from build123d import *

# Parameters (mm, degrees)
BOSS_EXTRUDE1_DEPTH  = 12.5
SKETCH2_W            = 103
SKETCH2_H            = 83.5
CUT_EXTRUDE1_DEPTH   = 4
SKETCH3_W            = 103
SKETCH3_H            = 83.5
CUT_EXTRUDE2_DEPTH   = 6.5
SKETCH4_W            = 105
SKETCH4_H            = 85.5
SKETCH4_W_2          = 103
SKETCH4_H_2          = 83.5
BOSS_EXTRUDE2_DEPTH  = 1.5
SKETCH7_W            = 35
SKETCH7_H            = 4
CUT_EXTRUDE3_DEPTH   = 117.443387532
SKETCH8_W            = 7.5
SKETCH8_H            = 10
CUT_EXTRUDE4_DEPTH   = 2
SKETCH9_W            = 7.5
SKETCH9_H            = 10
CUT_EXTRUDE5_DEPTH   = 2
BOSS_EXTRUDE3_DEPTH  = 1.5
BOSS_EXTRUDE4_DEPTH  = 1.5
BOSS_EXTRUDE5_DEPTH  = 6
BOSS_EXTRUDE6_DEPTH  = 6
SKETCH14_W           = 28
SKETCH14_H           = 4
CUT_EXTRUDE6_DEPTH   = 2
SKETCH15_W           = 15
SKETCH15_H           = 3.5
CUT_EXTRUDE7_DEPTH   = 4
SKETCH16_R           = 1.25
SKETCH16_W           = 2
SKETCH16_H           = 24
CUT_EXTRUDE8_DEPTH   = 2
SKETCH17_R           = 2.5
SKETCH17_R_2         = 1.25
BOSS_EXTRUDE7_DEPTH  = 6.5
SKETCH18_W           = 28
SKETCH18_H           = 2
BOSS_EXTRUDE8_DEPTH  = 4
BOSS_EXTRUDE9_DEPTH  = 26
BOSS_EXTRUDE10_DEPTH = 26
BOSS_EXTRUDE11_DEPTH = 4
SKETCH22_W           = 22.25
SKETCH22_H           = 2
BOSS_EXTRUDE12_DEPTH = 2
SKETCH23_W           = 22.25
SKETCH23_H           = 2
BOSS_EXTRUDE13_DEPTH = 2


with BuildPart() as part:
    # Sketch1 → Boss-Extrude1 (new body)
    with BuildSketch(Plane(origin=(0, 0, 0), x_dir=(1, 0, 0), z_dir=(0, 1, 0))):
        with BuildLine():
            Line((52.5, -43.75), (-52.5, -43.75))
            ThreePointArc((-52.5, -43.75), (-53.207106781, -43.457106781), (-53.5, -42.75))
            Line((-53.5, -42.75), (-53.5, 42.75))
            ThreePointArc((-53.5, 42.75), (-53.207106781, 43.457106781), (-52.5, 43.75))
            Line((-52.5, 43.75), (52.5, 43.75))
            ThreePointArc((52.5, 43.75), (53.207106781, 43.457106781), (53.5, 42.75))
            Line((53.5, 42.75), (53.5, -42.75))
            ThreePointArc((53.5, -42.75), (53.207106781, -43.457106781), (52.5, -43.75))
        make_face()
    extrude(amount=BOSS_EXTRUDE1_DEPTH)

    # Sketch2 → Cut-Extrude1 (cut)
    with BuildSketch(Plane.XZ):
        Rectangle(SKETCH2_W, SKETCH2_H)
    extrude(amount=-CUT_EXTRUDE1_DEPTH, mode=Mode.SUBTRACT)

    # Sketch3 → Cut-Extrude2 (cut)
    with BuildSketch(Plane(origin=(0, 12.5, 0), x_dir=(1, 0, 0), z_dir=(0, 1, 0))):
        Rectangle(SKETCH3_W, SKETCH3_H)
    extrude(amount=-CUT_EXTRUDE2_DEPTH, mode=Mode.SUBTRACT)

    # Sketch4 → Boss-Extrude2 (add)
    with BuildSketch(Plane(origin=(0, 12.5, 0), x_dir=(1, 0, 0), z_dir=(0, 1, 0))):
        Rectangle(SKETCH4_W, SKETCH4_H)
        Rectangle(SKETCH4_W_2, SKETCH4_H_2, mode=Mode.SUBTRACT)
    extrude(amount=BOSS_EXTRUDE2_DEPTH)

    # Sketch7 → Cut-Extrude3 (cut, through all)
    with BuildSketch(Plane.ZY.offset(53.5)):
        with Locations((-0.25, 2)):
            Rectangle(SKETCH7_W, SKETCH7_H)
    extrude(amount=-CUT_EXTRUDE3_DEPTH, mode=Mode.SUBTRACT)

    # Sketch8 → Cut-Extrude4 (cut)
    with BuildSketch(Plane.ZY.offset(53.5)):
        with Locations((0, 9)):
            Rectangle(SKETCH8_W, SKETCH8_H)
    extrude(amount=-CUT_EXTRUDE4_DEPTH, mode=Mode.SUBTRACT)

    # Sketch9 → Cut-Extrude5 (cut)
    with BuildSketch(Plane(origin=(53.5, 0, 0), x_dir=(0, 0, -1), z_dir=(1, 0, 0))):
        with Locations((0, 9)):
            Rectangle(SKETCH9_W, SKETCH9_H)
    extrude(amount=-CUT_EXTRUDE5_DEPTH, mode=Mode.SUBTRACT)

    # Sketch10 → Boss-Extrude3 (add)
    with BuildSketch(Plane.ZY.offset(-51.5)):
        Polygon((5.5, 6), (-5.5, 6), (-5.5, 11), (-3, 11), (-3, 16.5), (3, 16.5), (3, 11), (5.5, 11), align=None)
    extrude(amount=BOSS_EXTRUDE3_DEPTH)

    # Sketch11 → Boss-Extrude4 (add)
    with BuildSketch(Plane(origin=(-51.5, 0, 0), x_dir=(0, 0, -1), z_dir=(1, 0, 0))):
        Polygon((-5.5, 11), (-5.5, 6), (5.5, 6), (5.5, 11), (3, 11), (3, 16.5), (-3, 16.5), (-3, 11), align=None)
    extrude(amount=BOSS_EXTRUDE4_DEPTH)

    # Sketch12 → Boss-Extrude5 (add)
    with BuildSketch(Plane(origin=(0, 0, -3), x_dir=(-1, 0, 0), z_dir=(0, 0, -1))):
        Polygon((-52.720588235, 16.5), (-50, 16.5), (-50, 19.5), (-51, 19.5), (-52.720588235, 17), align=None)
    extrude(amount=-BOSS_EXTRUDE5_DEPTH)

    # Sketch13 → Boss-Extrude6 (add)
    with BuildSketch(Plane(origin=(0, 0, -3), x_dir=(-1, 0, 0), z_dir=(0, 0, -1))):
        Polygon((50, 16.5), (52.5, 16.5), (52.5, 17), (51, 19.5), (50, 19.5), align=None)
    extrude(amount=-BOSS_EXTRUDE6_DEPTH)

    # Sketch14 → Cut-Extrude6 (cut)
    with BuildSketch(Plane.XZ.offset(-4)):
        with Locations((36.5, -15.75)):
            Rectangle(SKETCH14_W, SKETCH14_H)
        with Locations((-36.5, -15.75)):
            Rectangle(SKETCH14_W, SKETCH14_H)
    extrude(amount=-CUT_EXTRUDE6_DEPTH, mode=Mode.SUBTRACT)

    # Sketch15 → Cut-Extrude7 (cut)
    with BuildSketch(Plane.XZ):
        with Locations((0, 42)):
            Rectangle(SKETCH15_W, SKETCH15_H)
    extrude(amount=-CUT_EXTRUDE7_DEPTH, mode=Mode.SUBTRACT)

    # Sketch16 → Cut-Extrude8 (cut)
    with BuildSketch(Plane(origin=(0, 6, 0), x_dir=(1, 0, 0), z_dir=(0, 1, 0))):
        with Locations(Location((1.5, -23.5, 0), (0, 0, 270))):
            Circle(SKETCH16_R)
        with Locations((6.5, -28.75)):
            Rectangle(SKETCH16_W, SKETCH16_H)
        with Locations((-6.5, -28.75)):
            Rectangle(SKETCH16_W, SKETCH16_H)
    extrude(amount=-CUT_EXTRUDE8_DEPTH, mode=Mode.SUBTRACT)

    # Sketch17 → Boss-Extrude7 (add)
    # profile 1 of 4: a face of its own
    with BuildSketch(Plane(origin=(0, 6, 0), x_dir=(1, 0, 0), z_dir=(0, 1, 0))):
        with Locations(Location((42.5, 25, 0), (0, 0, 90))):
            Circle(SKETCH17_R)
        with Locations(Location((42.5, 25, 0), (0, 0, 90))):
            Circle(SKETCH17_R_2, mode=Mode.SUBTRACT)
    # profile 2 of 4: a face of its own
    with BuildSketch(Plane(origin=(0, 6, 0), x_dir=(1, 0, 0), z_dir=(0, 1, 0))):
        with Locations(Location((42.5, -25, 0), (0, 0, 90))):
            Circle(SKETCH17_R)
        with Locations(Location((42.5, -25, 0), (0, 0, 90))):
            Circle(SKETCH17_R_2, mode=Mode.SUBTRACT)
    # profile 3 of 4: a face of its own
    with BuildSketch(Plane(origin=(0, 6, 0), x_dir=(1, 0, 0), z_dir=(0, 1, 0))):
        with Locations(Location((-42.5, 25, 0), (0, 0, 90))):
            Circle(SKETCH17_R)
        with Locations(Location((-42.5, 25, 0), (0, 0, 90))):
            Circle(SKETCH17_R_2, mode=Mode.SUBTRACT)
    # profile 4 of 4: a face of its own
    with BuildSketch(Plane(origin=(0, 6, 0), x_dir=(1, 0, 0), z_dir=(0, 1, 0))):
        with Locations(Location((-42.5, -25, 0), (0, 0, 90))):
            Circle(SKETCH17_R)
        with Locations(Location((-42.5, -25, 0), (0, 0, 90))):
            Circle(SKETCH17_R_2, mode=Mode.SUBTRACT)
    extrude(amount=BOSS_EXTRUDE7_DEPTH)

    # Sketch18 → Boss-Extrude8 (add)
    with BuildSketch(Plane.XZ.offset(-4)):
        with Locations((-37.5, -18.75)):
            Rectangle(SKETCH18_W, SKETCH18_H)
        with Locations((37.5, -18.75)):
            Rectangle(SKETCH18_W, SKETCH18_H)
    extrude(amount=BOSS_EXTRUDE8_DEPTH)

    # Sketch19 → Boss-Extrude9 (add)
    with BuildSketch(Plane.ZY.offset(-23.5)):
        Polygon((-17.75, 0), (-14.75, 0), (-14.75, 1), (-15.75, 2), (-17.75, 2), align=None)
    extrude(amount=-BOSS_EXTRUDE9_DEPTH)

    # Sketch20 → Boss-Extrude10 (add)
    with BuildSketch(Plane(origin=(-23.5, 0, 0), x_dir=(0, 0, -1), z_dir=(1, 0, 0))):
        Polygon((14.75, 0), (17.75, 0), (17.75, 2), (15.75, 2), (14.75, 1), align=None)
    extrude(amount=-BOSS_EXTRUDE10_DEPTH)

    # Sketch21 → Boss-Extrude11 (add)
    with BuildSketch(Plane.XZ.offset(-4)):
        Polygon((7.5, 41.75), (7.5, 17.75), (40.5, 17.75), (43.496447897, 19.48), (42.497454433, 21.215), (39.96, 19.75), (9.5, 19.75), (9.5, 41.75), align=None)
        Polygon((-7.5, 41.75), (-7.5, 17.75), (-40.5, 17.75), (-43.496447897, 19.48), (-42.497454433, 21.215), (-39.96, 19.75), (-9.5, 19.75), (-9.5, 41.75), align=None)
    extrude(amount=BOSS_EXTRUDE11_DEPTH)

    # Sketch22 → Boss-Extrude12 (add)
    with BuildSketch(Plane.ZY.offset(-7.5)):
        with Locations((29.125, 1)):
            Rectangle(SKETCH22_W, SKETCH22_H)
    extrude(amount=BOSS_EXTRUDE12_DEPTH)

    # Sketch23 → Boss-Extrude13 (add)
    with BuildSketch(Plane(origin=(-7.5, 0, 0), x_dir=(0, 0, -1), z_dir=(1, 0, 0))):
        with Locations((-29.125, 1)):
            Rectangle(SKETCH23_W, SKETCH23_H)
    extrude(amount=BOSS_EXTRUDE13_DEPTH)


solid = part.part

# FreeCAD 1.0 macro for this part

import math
import FreeCAD as App
import Part
import Sketcher

V = App.Vector
Q = App.Units.Quantity


def add_polygon(sketch, points):
    """Adds a closed chain of lines whose ends are joined by coincident constraints."""
    first, n = sketch.GeometryCount, len(points)
    for a, b in zip(points, points[1:] + points[:1]):
        sketch.addGeometry(Part.LineSegment(App.Vector(*a, 0), App.Vector(*b, 0)), False)
    for i in range(n):
        sketch.addConstraint(Sketcher.Constraint("Coincident", first + i, 2, first + (i + 1) % n, 1))

doc = App.newDocument("Part")
params = doc.addObject("Spreadsheet::Sheet", "Params")
for row, (alias, value) in enumerate([
    ("sketch1_radius", "1 mm"),
    ("sketch1_width", "105 mm"),
    ("sketch1_height", "85.5 mm"),
    ("pad1_length", "12.5 mm"),
    ("sketch2_width", "103 mm"),
    ("sketch2_height", "83.5 mm"),
    ("pocket1_length", "4 mm"),
    ("sketch3_width", "103 mm"),
    ("sketch3_height", "83.5 mm"),
    ("pocket2_length", "6.5 mm"),
    ("sketch4_width", "105 mm"),
    ("sketch4_width2", "103 mm"),
    ("sketch4_height", "85.5 mm"),
    ("sketch4_height2", "83.5 mm"),
    ("pad2_length", "1.5 mm"),
    ("sketch5_width", "4 mm"),
    ("sketch5_height", "35 mm"),
    ("sketch6_width", "10 mm"),
    ("sketch6_height", "7.5 mm"),
    ("pocket4_length", "2 mm"),
    ("sketch7_width", "10 mm"),
    ("sketch7_height", "7.5 mm"),
    ("pocket5_length", "2 mm"),
    ("sketch8_width", "5 mm"),
    ("sketch8_height", "11 mm"),
    ("sketch8_height2", "6 mm"),
    ("sketch8_width2", "5.5 mm"),
    ("pad3_length", "1.5 mm"),
    ("sketch9_width", "5 mm"),
    ("sketch9_height", "11 mm"),
    ("sketch9_height2", "6 mm"),
    ("sketch9_width2", "5.5 mm"),
    ("pad4_length", "1.5 mm"),
    ("sketch10_width", "1 mm"),
    ("sketch10_height", "3 mm"),
    ("sketch10_height2", "0.5 mm"),
    ("pad5_length", "6 mm"),
    ("sketch11_width", "1 mm"),
    ("sketch11_height", "3 mm"),
    ("sketch11_width2", "2.5 mm"),
    ("sketch11_height2", "0.5 mm"),
    ("pad6_length", "6 mm"),
    ("sketch12_width", "28 mm"),
    ("sketch12_height", "4 mm"),
    ("pocket6_length", "2 mm"),
    ("sketch13_width", "15 mm"),
    ("sketch13_height", "3.5 mm"),
    ("pocket7_length", "4 mm"),
    ("sketch14_diameter", "2.5 mm"),
    ("sketch14_width", "2 mm"),
    ("sketch14_height", "24 mm"),
    ("pocket8_length", "2 mm"),
    ("sketch15_diameter", "5 mm"),
    ("sketch15_diameter2", "2.5 mm"),
    ("pad7_length", "6.5 mm"),
    ("sketch16_width", "28 mm"),
    ("sketch16_height", "2 mm"),
    ("pad8_length", "4 mm"),
    ("sketch17_width", "1 mm"),
    ("sketch17_width2", "2 mm"),
    ("sketch17_height", "3 mm"),
    ("pad9_length", "26 mm"),
    ("sketch18_width", "2 mm"),
    ("sketch18_width2", "1 mm"),
    ("sketch18_height", "3 mm"),
    ("pad10_length", "26 mm"),
    ("sketch19_width", "33 mm"),
    ("sketch19_width2", "2 mm"),
    ("sketch19_height", "24 mm"),
    ("sketch19_height2", "22 mm"),
    ("sketch19_width3", "30.46 mm"),
    ("pad11_length", "4 mm"),
    ("sketch20_width", "2 mm"),
    ("sketch20_height", "22.25 mm"),
    ("pad12_length", "2 mm"),
    ("sketch21_width", "2 mm"),
    ("sketch21_height", "22.25 mm"),
    ("pad13_length", "2 mm"),
], start=1):
    params.set(f"A{row}", alias)
    params.set(f"B{row}", "=" + value)
    params.setAlias(f"B{row}", alias)

body = doc.addObject("PartDesign::Body", "Body")

# Sketch on XZ plane
sketch1 = body.newObject("Sketcher::SketchObject", "Sketch")
sketch1.AttachmentSupport = (doc.getObject("XZ_Plane"), [""])
sketch1.MapMode = "FlatFace"
sketch1.addGeometry([
    Part.LineSegment(V(-52.5, 43.8, 0), V(52.5, 43.8, 0)),  # 0
    Part.ArcOfCircle(Part.Circle(V(52.5, 42.7, 0), V(0, 0, 1), 1), math.radians(0), math.radians(90)),  # 1
    Part.LineSegment(V(53.5, 42.8, 0), V(53.5, -42.8, 0)),  # 2
    Part.ArcOfCircle(Part.Circle(V(52.5, -42.7, 0), V(0, 0, 1), 1), math.radians(-90), math.radians(0)),  # 3
    Part.LineSegment(V(52.5, -43.8, 0), V(-52.5, -43.8, 0)),  # 4
    Part.ArcOfCircle(Part.Circle(V(-52.5, -42.7, 0), V(0, 0, 1), 1), math.radians(-180), math.radians(-90)),  # 5
    Part.LineSegment(V(-53.5, -42.8, 0), V(-53.5, 42.8, 0)),  # 6
    Part.ArcOfCircle(Part.Circle(V(-52.5, 42.7, 0), V(0, 0, 1), 1), math.radians(90), math.radians(180)),  # 7
], False)
sketch1.addConstraint([
    Sketcher.Constraint("Tangent", 0, 2, 1, 2),
    Sketcher.Constraint("Tangent", 1, 1, 2, 1),
    Sketcher.Constraint("Tangent", 2, 2, 3, 2),
    Sketcher.Constraint("Tangent", 3, 1, 4, 1),
    Sketcher.Constraint("Tangent", 4, 2, 5, 2),
    Sketcher.Constraint("Tangent", 5, 1, 6, 1),
    Sketcher.Constraint("Tangent", 6, 2, 7, 2),
    Sketcher.Constraint("Tangent", 7, 1, 0, 1),
    Sketcher.Constraint("Horizontal", 0),
    Sketcher.Constraint("Vertical", 2),
    Sketcher.Constraint("Horizontal", 4),
    Sketcher.Constraint("Vertical", 6),
    Sketcher.Constraint("Equal", 1, 3),
    Sketcher.Constraint("Equal", 3, 5),
    Sketcher.Constraint("Equal", 5, 7),
    Sketcher.Constraint("Symmetric", 1, 3, 5, 3, -1, 1),
    Sketcher.Constraint("Radius", 1, Q("1 mm")),
    Sketcher.Constraint("DistanceX", 0, 1, 0, 2, Q("105 mm")),
    Sketcher.Constraint("DistanceY", 2, 2, 2, 1, Q("85.5 mm")),
])
sketch1.setExpression("Constraints[16]", "Params.sketch1_radius")
sketch1.setExpression("Constraints[17]", "Params.sketch1_width")
sketch1.setExpression("Constraints[18]", "Params.sketch1_height")
pad1 = body.newObject("PartDesign::Pad", "Pad")
pad1.Profile = sketch1
pad1.setExpression("Length", "Params.pad1_length")
pad1.Reversed = True

# Sketch on XZ plane
sketch2 = body.newObject("Sketcher::SketchObject", "Sketch001")
sketch2.AttachmentSupport = (doc.getObject("XZ_Plane"), [""])
sketch2.MapMode = "FlatFace"
add_polygon(sketch2, [(-52, 42), (-52, -42), (52, -42), (52, 42)])  # lines 0-3
sketch2.addConstraint([
    Sketcher.Constraint("Vertical", 0),
    Sketcher.Constraint("Horizontal", 1),
    Sketcher.Constraint("Vertical", 2),
    Sketcher.Constraint("Horizontal", 3),
    Sketcher.Constraint("Symmetric", 0, 2, 2, 2, -1, 1),
    Sketcher.Constraint("DistanceX", 1, 1, 1, 2, Q("103 mm")),
    Sketcher.Constraint("DistanceY", 0, 2, 0, 1, Q("83.5 mm")),
])
sketch2.setExpression("Constraints[9]", "Params.sketch2_width")
sketch2.setExpression("Constraints[10]", "Params.sketch2_height")
pocket1 = body.newObject("PartDesign::Pocket", "Pocket")
pocket1.Profile = sketch2
pocket1.setExpression("Length", "Params.pocket1_length")

# Sketch on XZ plane
sketch3 = body.newObject("Sketcher::SketchObject", "Sketch002")
sketch3.AttachmentSupport = (doc.getObject("XZ_Plane"), [""])
sketch3.MapMode = "FlatFace"
sketch3.AttachmentOffset = App.Placement(V(0, 0, -12.5), App.Rotation())
add_polygon(sketch3, [(-52, -42), (-52, 42), (52, 42), (52, -42)])  # lines 0-3
sketch3.addConstraint([
    Sketcher.Constraint("Vertical", 0),
    Sketcher.Constraint("Horizontal", 1),
    Sketcher.Constraint("Vertical", 2),
    Sketcher.Constraint("Horizontal", 3),
    Sketcher.Constraint("Symmetric", 0, 2, 2, 2, -1, 1),
    Sketcher.Constraint("DistanceX", 1, 1, 1, 2, Q("103 mm")),
    Sketcher.Constraint("DistanceY", 0, 1, 0, 2, Q("83.5 mm")),
])
sketch3.setExpression("Constraints[9]", "Params.sketch3_width")
sketch3.setExpression("Constraints[10]", "Params.sketch3_height")
pocket2 = body.newObject("PartDesign::Pocket", "Pocket001")
pocket2.Profile = sketch3
pocket2.setExpression("Length", "Params.pocket2_length")
pocket2.Reversed = True

# Sketch on XZ plane
sketch4 = body.newObject("Sketcher::SketchObject", "Sketch003")
sketch4.AttachmentSupport = (doc.getObject("XZ_Plane"), [""])
sketch4.MapMode = "FlatFace"
sketch4.AttachmentOffset = App.Placement(V(0, 0, -12.5), App.Rotation())
add_polygon(sketch4, [(-52, -43), (-52, 43), (52, 43), (52, -43)])  # lines 0-3
add_polygon(sketch4, [(52, 42), (-52, 42), (-52, -42), (52, -42)])  # lines 4-7
sketch4.addConstraint([
    Sketcher.Constraint("Vertical", 0),
    Sketcher.Constraint("Horizontal", 1),
    Sketcher.Constraint("Vertical", 2),
    Sketcher.Constraint("Horizontal", 3),
    Sketcher.Constraint("Horizontal", 4),
    Sketcher.Constraint("Vertical", 5),
    Sketcher.Constraint("Horizontal", 6),
    Sketcher.Constraint("Vertical", 7),
    Sketcher.Constraint("Symmetric", 0, 2, 2, 2, -1, 1),
    Sketcher.Constraint("Symmetric", 4, 2, 6, 2, -1, 1),
    Sketcher.Constraint("DistanceX", 1, 1, 1, 2, Q("105 mm")),
    Sketcher.Constraint("DistanceX", 4, 2, 4, 1, Q("103 mm")),
    Sketcher.Constraint("DistanceY", 0, 1, 0, 2, Q("85.5 mm")),
    Sketcher.Constraint("DistanceY", 5, 2, 5, 1, Q("83.5 mm")),
])
sketch4.setExpression("Constraints[18]", "Params.sketch4_width")
sketch4.setExpression("Constraints[19]", "Params.sketch4_width2")
sketch4.setExpression("Constraints[20]", "Params.sketch4_height")
sketch4.setExpression("Constraints[21]", "Params.sketch4_height2")
pad2 = body.newObject("PartDesign::Pad", "Pad001")
pad2.Profile = sketch4
pad2.setExpression("Length", "Params.pad2_length")
pad2.Reversed = True

# Sketch on YZ plane
sketch5 = body.newObject("Sketcher::SketchObject", "Sketch004")
sketch5.AttachmentSupport = (doc.getObject("YZ_Plane"), [""])
sketch5.MapMode = "FlatFace"
sketch5.AttachmentOffset = App.Placement(V(0, 0, -53.5), App.Rotation())
add_polygon(sketch5, [(4, -17.8), (0, -17.8), (0, 17.2), (4, 17.2)])  # lines 0-3
sketch5.addConstraint([
    Sketcher.Constraint("Horizontal", 0),
    Sketcher.Constraint("Vertical", 1),
    Sketcher.Constraint("Horizontal", 2),
    Sketcher.Constraint("Vertical", 3),
    Sketcher.Constraint("PointOnObject", 0, 2, -2),
    Sketcher.Constraint("DistanceX", 0, 2, 0, 1, Q("4 mm")),
    Sketcher.Constraint("DistanceY", 1, 1, 1, 2, Q("35 mm")),
    Sketcher.Constraint("DistanceY", 0, 2, -1, 1, Q("17.75 mm")),
])
sketch5.setExpression("Constraints[9]", "Params.sketch5_width")
sketch5.setExpression("Constraints[10]", "Params.sketch5_height")
pocket3 = body.newObject("PartDesign::Pocket", "Pocket002")
pocket3.Profile = sketch5
pocket3.Type = "ThroughAll"
pocket3.Reversed = True

# Sketch on YZ plane
sketch6 = body.newObject("Sketcher::SketchObject", "Sketch005")
sketch6.AttachmentSupport = (doc.getObject("YZ_Plane"), [""])
sketch6.MapMode = "FlatFace"
sketch6.AttachmentOffset = App.Placement(V(0, 0, -53.5), App.Rotation())
add_polygon(sketch6, [(14, -4), (4, -4), (4, 4), (14, 4)])  # lines 0-3
sketch6.addConstraint([
    Sketcher.Constraint("Horizontal", 0),
    Sketcher.Constraint("Vertical", 1),
    Sketcher.Constraint("Horizontal", 2),
    Sketcher.Constraint("Vertical", 3),
    Sketcher.Constraint("DistanceX", 0, 2, 0, 1, Q("10 mm")),
    Sketcher.Constraint("DistanceY", 1, 1, 1, 2, Q("7.5 mm")),
    Sketcher.Constraint("DistanceX", -1, 1, 0, 2, Q("4 mm")),
    Sketcher.Constraint("DistanceY", 0, 2, -1, 1, Q("3.75 mm")),
])
sketch6.setExpression("Constraints[8]", "Params.sketch6_width")
sketch6.setExpression("Constraints[9]", "Params.sketch6_height")
pocket4 = body.newObject("PartDesign::Pocket", "Pocket003")
pocket4.Profile = sketch6
pocket4.setExpression("Length", "Params.pocket4_length")
pocket4.Reversed = True

# Sketch on YZ plane
sketch7 = body.newObject("Sketcher::SketchObject", "Sketch006")
sketch7.AttachmentSupport = (doc.getObject("YZ_Plane"), [""])
sketch7.MapMode = "FlatFace"
sketch7.AttachmentOffset = App.Placement(V(0, 0, 53.5), App.Rotation())
add_polygon(sketch7, [(14, 4), (4, 4), (4, -4), (14, -4)])  # lines 0-3
sketch7.addConstraint([
    Sketcher.Constraint("Horizontal", 0),
    Sketcher.Constraint("Vertical", 1),
    Sketcher.Constraint("Horizontal", 2),
    Sketcher.Constraint("Vertical", 3),
    Sketcher.Constraint("DistanceX", 0, 2, 0, 1, Q("10 mm")),
    Sketcher.Constraint("DistanceY", 1, 2, 1, 1, Q("7.5 mm")),
    Sketcher.Constraint("DistanceX", -1, 1, 0, 2, Q("4 mm")),
    Sketcher.Constraint("DistanceY", -1, 1, 0, 2, Q("3.75 mm")),
])
sketch7.setExpression("Constraints[8]", "Params.sketch7_width")
sketch7.setExpression("Constraints[9]", "Params.sketch7_height")
pocket5 = body.newObject("PartDesign::Pocket", "Pocket004")
pocket5.Profile = sketch7
pocket5.setExpression("Length", "Params.pocket5_length")

# Sketch on YZ plane
sketch8 = body.newObject("Sketcher::SketchObject", "Sketch007")
sketch8.AttachmentSupport = (doc.getObject("YZ_Plane"), [""])
sketch8.MapMode = "FlatFace"
sketch8.AttachmentOffset = App.Placement(V(0, 0, 51.5), App.Rotation())
add_polygon(sketch8, [(6, -5.5), (6, 5.5), (11, 5.5), (11, 3), (16.5, 3), (16.5, -3), (11, -3), (11, -5.5)])  # lines 0-7
sketch8.addConstraint([
    Sketcher.Constraint("Vertical", 0),
    Sketcher.Constraint("Horizontal", 1),
    Sketcher.Constraint("Vertical", 2),
    Sketcher.Constraint("Horizontal", 3),
    Sketcher.Constraint("Vertical", 4),
    Sketcher.Constraint("Horizontal", 5),
    Sketcher.Constraint("Vertical", 6),
    Sketcher.Constraint("Horizontal", 7),
    Sketcher.Constraint("Symmetric", 2, 2, 5, 2, -1),
    Sketcher.Constraint("Equal", 2, 6),
    Sketcher.Constraint("DistanceX", 1, 1, 1, 2, Q("5 mm")),
    Sketcher.Constraint("DistanceY", 0, 1, 0, 2, Q("11 mm")),
    Sketcher.Constraint("DistanceY", 4, 2, 4, 1, Q("6 mm")),
    Sketcher.Constraint("DistanceX", 3, 1, 3, 2, Q("5.5 mm")),
    Sketcher.Constraint("DistanceX", -1, 1, 0, 2, Q("6 mm")),
])
sketch8.setExpression("Constraints[18]", "Params.sketch8_width")
sketch8.setExpression("Constraints[19]", "Params.sketch8_height")
sketch8.setExpression("Constraints[20]", "Params.sketch8_height2")
sketch8.setExpression("Constraints[21]", "Params.sketch8_width2")
pad3 = body.newObject("PartDesign::Pad", "Pad002")
pad3.Profile = sketch8
pad3.setExpression("Length", "Params.pad3_length")
pad3.Reversed = True

# Sketch on YZ plane
sketch9 = body.newObject("Sketcher::SketchObject", "Sketch008")
sketch9.AttachmentSupport = (doc.getObject("YZ_Plane"), [""])
sketch9.MapMode = "FlatFace"
sketch9.AttachmentOffset = App.Placement(V(0, 0, -51.5), App.Rotation())
add_polygon(sketch9, [(11, 5.5), (6, 5.5), (6, -5.5), (11, -5.5), (11, -3), (16.5, -3), (16.5, 3), (11, 3)])  # lines 0-7
sketch9.addConstraint([
    Sketcher.Constraint("Horizontal", 0),
    Sketcher.Constraint("Vertical", 1),
    Sketcher.Constraint("Horizontal", 2),
    Sketcher.Constraint("Vertical", 3),
    Sketcher.Constraint("Horizontal", 4),
    Sketcher.Constraint("Vertical", 5),
    Sketcher.Constraint("Horizontal", 6),
    Sketcher.Constraint("Vertical", 7),
    Sketcher.Constraint("Symmetric", 3, 2, 6, 2, -1),
    Sketcher.Constraint("Equal", 3, 7),
    Sketcher.Constraint("DistanceX", 0, 2, 0, 1, Q("5 mm")),
    Sketcher.Constraint("DistanceY", 1, 2, 1, 1, Q("11 mm")),
    Sketcher.Constraint("DistanceY", 5, 1, 5, 2, Q("6 mm")),
    Sketcher.Constraint("DistanceX", 4, 1, 4, 2, Q("5.5 mm")),
    Sketcher.Constraint("DistanceX", -1, 1, 0, 2, Q("6 mm")),
])
sketch9.setExpression("Constraints[18]", "Params.sketch9_width")
sketch9.setExpression("Constraints[19]", "Params.sketch9_height")
sketch9.setExpression("Constraints[20]", "Params.sketch9_height2")
sketch9.setExpression("Constraints[21]", "Params.sketch9_width2")
pad4 = body.newObject("PartDesign::Pad", "Pad003")
pad4.Profile = sketch9
pad4.setExpression("Length", "Params.pad4_length")

# Sketch on XY plane
sketch10 = body.newObject("Sketcher::SketchObject", "Sketch009")
sketch10.AttachmentSupport = (doc.getObject("XY_Plane"), [""])
sketch10.MapMode = "FlatFace"
sketch10.AttachmentOffset = App.Placement(V(0, 0, -3), App.Rotation())
add_polygon(sketch10, [(52.7, 16.5), (50, 16.5), (50, 19.5), (51, 19.5), (52.7, 17)])  # lines 0-4
sketch10.addConstraint([
    Sketcher.Constraint("Horizontal", 0),
    Sketcher.Constraint("Vertical", 1),
    Sketcher.Constraint("Horizontal", 2),
    Sketcher.Constraint("Vertical", 4),
    Sketcher.Constraint("DistanceX", 2, 1, 2, 2, Q("1 mm")),
    Sketcher.Constraint("DistanceY", 1, 1, 1, 2, Q("3 mm")),
    Sketcher.Constraint("DistanceY", 4, 2, 4, 1, Q("0.5 mm")),
    Sketcher.Constraint("DistanceX", -1, 1, 0, 2, Q("50 mm")),
    Sketcher.Constraint("DistanceY", -1, 1, 3, 2, Q("17 mm")),
    Sketcher.Constraint("DistanceX", 0, 2, 0, 1, Q("2.720588 mm")),
])
sketch10.setExpression("Constraints[9]", "Params.sketch10_width")
sketch10.setExpression("Constraints[10]", "Params.sketch10_height")
sketch10.setExpression("Constraints[11]", "Params.sketch10_height2")
pad5 = body.newObject("PartDesign::Pad", "Pad004")
pad5.Profile = sketch10
pad5.setExpression("Length", "Params.pad5_length")

# Sketch on XY plane
sketch11 = body.newObject("Sketcher::SketchObject", "Sketch010")
sketch11.AttachmentSupport = (doc.getObject("XY_Plane"), [""])
sketch11.MapMode = "FlatFace"
sketch11.AttachmentOffset = App.Placement(V(0, 0, -3), App.Rotation())
add_polygon(sketch11, [(-50, 16.5), (-52.5, 16.5), (-52.5, 17), (-51, 19.5), (-50, 19.5)])  # lines 0-4
sketch11.addConstraint([
    Sketcher.Constraint("Horizontal", 0),
    Sketcher.Constraint("Vertical", 1),
    Sketcher.Constraint("Horizontal", 3),
    Sketcher.Constraint("Vertical", 4),
    Sketcher.Constraint("DistanceX", 3, 1, 3, 2, Q("1 mm")),
    Sketcher.Constraint("DistanceY", 4, 2, 4, 1, Q("3 mm")),
    Sketcher.Constraint("DistanceX", 0, 2, 0, 1, Q("2.5 mm")),
    Sketcher.Constraint("DistanceY", 1, 1, 1, 2, Q("0.5 mm")),
    Sketcher.Constraint("DistanceY", -1, 1, 1, 2, Q("17 mm")),
    Sketcher.Constraint("DistanceX", 2, 2, -1, 1, Q("51 mm")),
])
sketch11.setExpression("Constraints[9]", "Params.sketch11_width")
sketch11.setExpression("Constraints[10]", "Params.sketch11_height")
sketch11.setExpression("Constraints[11]", "Params.sketch11_width2")
sketch11.setExpression("Constraints[12]", "Params.sketch11_height2")
pad6 = body.newObject("PartDesign::Pad", "Pad005")
pad6.Profile = sketch11
pad6.setExpression("Length", "Params.pad6_length")

# Sketch on XZ plane
sketch12 = body.newObject("Sketcher::SketchObject", "Sketch011")
sketch12.AttachmentSupport = (doc.getObject("XZ_Plane"), [""])
sketch12.MapMode = "FlatFace"
sketch12.AttachmentOffset = App.Placement(V(0, 0, -4), App.Rotation())
add_polygon(sketch12, [(22.5, -13.8), (22.5, -17.8), (50.5, -17.8), (50.5, -13.8)])  # lines 0-3
add_polygon(sketch12, [(-50.5, -13.8), (-50.5, -17.8), (-22.5, -17.8), (-22.5, -13.8)])  # lines 4-7
sketch12.addConstraint([
    Sketcher.Constraint("Vertical", 0),
    Sketcher.Constraint("Horizontal", 1),
    Sketcher.Constraint("Vertical", 2),
    Sketcher.Constraint("Horizontal", 3),
    Sketcher.Constraint("Vertical", 4),
    Sketcher.Constraint("Horizontal", 5),
    Sketcher.Constraint("Vertical", 6),
    Sketcher.Constraint("Horizontal", 7),
    Sketcher.Constraint("Symmetric", 1, 2, 4, 2, -2),
    Sketcher.Constraint("Symmetric", 3, 2, 6, 2, -2),
    Sketcher.Constraint("DistanceX", 1, 1, 1, 2, Q("28 mm")),
    Sketcher.Constraint("DistanceY", 0, 2, 0, 1, Q("4 mm")),
    Sketcher.Constraint("DistanceX", 4, 2, 0, 2, Q("73 mm")),
    Sketcher.Constraint("DistanceY", 0, 2, -1, 1, Q("17.75 mm")),
])
sketch12.setExpression("Constraints[18]", "Params.sketch12_width")
sketch12.setExpression("Constraints[19]", "Params.sketch12_height")
pocket6 = body.newObject("PartDesign::Pocket", "Pocket005")
pocket6.Profile = sketch12
pocket6.setExpression("Length", "Params.pocket6_length")

# Sketch on XZ plane
sketch13 = body.newObject("Sketcher::SketchObject", "Sketch012")
sketch13.AttachmentSupport = (doc.getObject("XZ_Plane"), [""])
sketch13.MapMode = "FlatFace"
add_polygon(sketch13, [(-7.5, 43.8), (-7.5, 40.2), (7.5, 40.2), (7.5, 43.8)])  # lines 0-3
sketch13.addConstraint([
    Sketcher.Constraint("Vertical", 0),
    Sketcher.Constraint("Horizontal", 1),
    Sketcher.Constraint("Vertical", 2),
    Sketcher.Constraint("Horizontal", 3),
    Sketcher.Constraint("DistanceX", 1, 1, 1, 2, Q("15 mm")),
    Sketcher.Constraint("DistanceY", 0, 2, 0, 1, Q("3.5 mm")),
    Sketcher.Constraint("DistanceX", 0, 2, -1, 1, Q("7.5 mm")),
    Sketcher.Constraint("DistanceY", -1, 1, 0, 2, Q("40.25 mm")),
])
sketch13.setExpression("Constraints[8]", "Params.sketch13_width")
sketch13.setExpression("Constraints[9]", "Params.sketch13_height")
pocket7 = body.newObject("PartDesign::Pocket", "Pocket006")
pocket7.Profile = sketch13
pocket7.setExpression("Length", "Params.pocket7_length")

# Sketch on XZ plane
sketch14 = body.newObject("Sketcher::SketchObject", "Sketch013")
sketch14.AttachmentSupport = (doc.getObject("XZ_Plane"), [""])
sketch14.MapMode = "FlatFace"
sketch14.AttachmentOffset = App.Placement(V(0, 0, -6), App.Rotation())
sketch14.addGeometry(Part.Circle(V(1.5, 23.5, 0), V(0, 0, 1), 1.2), False)  # 0
add_polygon(sketch14, [(5.5, 16.8), (5.5, 40.8), (7.5, 40.8), (7.5, 16.8)])  # lines 1-4
add_polygon(sketch14, [(-7.5, 16.8), (-7.5, 40.8), (-5.5, 40.8), (-5.5, 16.8)])  # lines 5-8
sketch14.addConstraint([
    Sketcher.Constraint("Vertical", 1),
    Sketcher.Constraint("Horizontal", 2),
    Sketcher.Constraint("Vertical", 3),
    Sketcher.Constraint("Horizontal", 4),
    Sketcher.Constraint("Vertical", 5),
    Sketcher.Constraint("Horizontal", 6),
    Sketcher.Constraint("Vertical", 7),
    Sketcher.Constraint("Horizontal", 8),
    Sketcher.Constraint("Symmetric", 2, 2, 5, 2, -2),
    Sketcher.Constraint("Symmetric", 4, 2, 7, 2, -2),
    Sketcher.Constraint("Diameter", 0, Q("2.5 mm")),
    Sketcher.Constraint("DistanceX", 2, 1, 2, 2, Q("2 mm")),
    Sketcher.Constraint("DistanceY", 1, 1, 1, 2, Q("24 mm")),
    Sketcher.Constraint("DistanceX", 0, 3, 1, 2, Q("4 mm")),
    Sketcher.Constraint("DistanceX", 5, 2, 1, 2, Q("13 mm")),
    Sketcher.Constraint("DistanceY", -1, 1, 0, 3, Q("23.5 mm")),
    Sketcher.Constraint("DistanceY", -1, 1, 1, 2, Q("40.75 mm")),
])
sketch14.setExpression("Constraints[18]", "Params.sketch14_diameter")
sketch14.setExpression("Constraints[19]", "Params.sketch14_width")
sketch14.setExpression("Constraints[20]", "Params.sketch14_height")
pocket8 = body.newObject("PartDesign::Pocket", "Pocket007")
pocket8.Profile = sketch14
pocket8.setExpression("Length", "Params.pocket8_length")
pocket8.Reversed = True

# Sketch on XZ plane
sketch15 = body.newObject("Sketcher::SketchObject", "Sketch014")
sketch15.AttachmentSupport = (doc.getObject("XZ_Plane"), [""])
sketch15.MapMode = "FlatFace"
sketch15.AttachmentOffset = App.Placement(V(0, 0, -6), App.Rotation())
sketch15.addGeometry([
    Part.Circle(V(42.5, -25, 0), V(0, 0, 1), 2.5),  # 0
    Part.Circle(V(42.5, -25, 0), V(0, 0, 1), 1.2),  # 1
    Part.Circle(V(42.5, 25, 0), V(0, 0, 1), 2.5),  # 2
    Part.Circle(V(42.5, 25, 0), V(0, 0, 1), 1.2),  # 3
    Part.Circle(V(-42.5, -25, 0), V(0, 0, 1), 2.5),  # 4
    Part.Circle(V(-42.5, -25, 0), V(0, 0, 1), 1.2),  # 5
    Part.Circle(V(-42.5, 25, 0), V(0, 0, 1), 2.5),  # 6
    Part.Circle(V(-42.5, 25, 0), V(0, 0, 1), 1.2),  # 7
], False)
sketch15.addConstraint([
    Sketcher.Constraint("Coincident", 1, 3, 0, 3),
    Sketcher.Constraint("Coincident", 3, 3, 2, 3),
    Sketcher.Constraint("Coincident", 5, 3, 4, 3),
    Sketcher.Constraint("Coincident", 7, 3, 6, 3),
    Sketcher.Constraint("Equal", 0, 2),
    Sketcher.Constraint("Equal", 1, 3),
    Sketcher.Constraint("Equal", 2, 4),
    Sketcher.Constraint("Equal", 3, 5),
    Sketcher.Constraint("Equal", 4, 6),
    Sketcher.Constraint("Equal", 5, 7),
    Sketcher.Constraint("Symmetric", 2, 3, 4, 3, -1, 1),
    Sketcher.Constraint("Symmetric", 0, 3, 6, 3, -1, 1),
    Sketcher.Constraint("Symmetric", 0, 3, 4, 3, -2),
    Sketcher.Constraint("Diameter", 0, Q("5 mm")),
    Sketcher.Constraint("Diameter", 1, Q("2.5 mm")),
    Sketcher.Constraint("DistanceY", 0, 3, -1, 1, Q("25 mm")),
    Sketcher.Constraint("DistanceX", 4, 3, 0, 3, Q("85 mm")),
])
sketch15.setExpression("Constraints[13]", "Params.sketch15_diameter")
sketch15.setExpression("Constraints[14]", "Params.sketch15_diameter2")
pad7 = body.newObject("PartDesign::Pad", "Pad006")
pad7.Profile = sketch15
pad7.setExpression("Length", "Params.pad7_length")
pad7.Reversed = True

# Sketch on XZ plane
sketch16 = body.newObject("Sketcher::SketchObject", "Sketch015")
sketch16.AttachmentSupport = (doc.getObject("XZ_Plane"), [""])
sketch16.MapMode = "FlatFace"
sketch16.AttachmentOffset = App.Placement(V(0, 0, -4), App.Rotation())
add_polygon(sketch16, [(-51.5, -17.8), (-51.5, -19.8), (-23.5, -19.8), (-23.5, -17.8)])  # lines 0-3
add_polygon(sketch16, [(23.5, -17.8), (23.5, -19.8), (51.5, -19.8), (51.5, -17.8)])  # lines 4-7
sketch16.addConstraint([
    Sketcher.Constraint("Vertical", 0),
    Sketcher.Constraint("Horizontal", 1),
    Sketcher.Constraint("Vertical", 2),
    Sketcher.Constraint("Horizontal", 3),
    Sketcher.Constraint("Vertical", 4),
    Sketcher.Constraint("Horizontal", 5),
    Sketcher.Constraint("Vertical", 6),
    Sketcher.Constraint("Horizontal", 7),
    Sketcher.Constraint("Symmetric", 1, 2, 4, 2, -2),
    Sketcher.Constraint("Symmetric", 3, 2, 6, 2, -2),
    Sketcher.Constraint("DistanceX", 1, 1, 1, 2, Q("28 mm")),
    Sketcher.Constraint("DistanceY", 0, 2, 0, 1, Q("2 mm")),
    Sketcher.Constraint("DistanceX", 1, 2, 4, 2, Q("47 mm")),
    Sketcher.Constraint("DistanceY", 0, 2, -1, 1, Q("19.75 mm")),
])
sketch16.setExpression("Constraints[18]", "Params.sketch16_width")
sketch16.setExpression("Constraints[19]", "Params.sketch16_height")
pad8 = body.newObject("PartDesign::Pad", "Pad007")
pad8.Profile = sketch16
pad8.setExpression("Length", "Params.pad8_length")

# Sketch on YZ plane
sketch17 = body.newObject("Sketcher::SketchObject", "Sketch016")
sketch17.AttachmentSupport = (doc.getObject("YZ_Plane"), [""])
sketch17.MapMode = "FlatFace"
sketch17.AttachmentOffset = App.Placement(V(0, 0, 23.5), App.Rotation())
add_polygon(sketch17, [(0, -17.8), (0, -14.8), (1, -14.8), (2, -15.8), (2, -17.8)])  # lines 0-4
sketch17.addConstraint([
    Sketcher.Constraint("Vertical", 0),
    Sketcher.Constraint("Horizontal", 1),
    Sketcher.Constraint("Vertical", 3),
    Sketcher.Constraint("Horizontal", 4),
    Sketcher.Constraint("PointOnObject", 0, 2, -2),
    Sketcher.Constraint("Equal", 4, 3),
    Sketcher.Constraint("DistanceX", 1, 1, 1, 2, Q("1 mm")),
    Sketcher.Constraint("DistanceX", 4, 2, 4, 1, Q("2 mm")),
    Sketcher.Constraint("DistanceY", 0, 1, 0, 2, Q("3 mm")),
    Sketcher.Constraint("DistanceY", 0, 2, -1, 1, Q("14.75 mm")),
])
sketch17.setExpression("Constraints[11]", "Params.sketch17_width")
sketch17.setExpression("Constraints[12]", "Params.sketch17_width2")
sketch17.setExpression("Constraints[13]", "Params.sketch17_height")
pad9 = body.newObject("PartDesign::Pad", "Pad008")
pad9.Profile = sketch17
pad9.setExpression("Length", "Params.pad9_length")

# Sketch on YZ plane
sketch18 = body.newObject("Sketcher::SketchObject", "Sketch017")
sketch18.AttachmentSupport = (doc.getObject("YZ_Plane"), [""])
sketch18.MapMode = "FlatFace"
sketch18.AttachmentOffset = App.Placement(V(0, 0, -23.5), App.Rotation())
add_polygon(sketch18, [(0, -14.8), (0, -17.8), (2, -17.8), (2, -15.8), (1, -14.8)])  # lines 0-4
sketch18.addConstraint([
    Sketcher.Constraint("Vertical", 0),
    Sketcher.Constraint("Horizontal", 1),
    Sketcher.Constraint("Vertical", 2),
    Sketcher.Constraint("Horizontal", 4),
    Sketcher.Constraint("PointOnObject", 0, 2, -2),
    Sketcher.Constraint("Equal", 1, 2),
    Sketcher.Constraint("DistanceX", 1, 1, 1, 2, Q("2 mm")),
    Sketcher.Constraint("DistanceX", 4, 2, 4, 1, Q("1 mm")),
    Sketcher.Constraint("DistanceY", 0, 2, 0, 1, Q("3 mm")),
    Sketcher.Constraint("DistanceY", 0, 2, -1, 1, Q("17.75 mm")),
])
sketch18.setExpression("Constraints[11]", "Params.sketch18_width")
sketch18.setExpression("Constraints[12]", "Params.sketch18_width2")
sketch18.setExpression("Constraints[13]", "Params.sketch18_height")
pad10 = body.newObject("PartDesign::Pad", "Pad009")
pad10.Profile = sketch18
pad10.setExpression("Length", "Params.pad10_length")
pad10.Reversed = True

# Sketch on XZ plane
sketch19 = body.newObject("Sketcher::SketchObject", "Sketch018")
sketch19.AttachmentSupport = (doc.getObject("XZ_Plane"), [""])
sketch19.MapMode = "FlatFace"
sketch19.AttachmentOffset = App.Placement(V(0, 0, -4), App.Rotation())
add_polygon(sketch19, [(7.5, 41.8), (7.5, 17.8), (40.5, 17.8), (43.5, 19.5), (42.5, 21.2), (40, 19.8), (9.5, 19.8), (9.5, 41.8)])  # lines 0-7
add_polygon(sketch19, [(-7.5, 17.8), (-7.5, 41.8), (-9.5, 41.8), (-9.5, 19.8), (-40, 19.8), (-42.5, 21.2), (-43.5, 19.5), (-40.5, 17.8)])  # lines 8-15
sketch19.addConstraint([
    Sketcher.Constraint("Vertical", 0),
    Sketcher.Constraint("Horizontal", 1),
    Sketcher.Constraint("Horizontal", 5),
    Sketcher.Constraint("Vertical", 6),
    Sketcher.Constraint("Horizontal", 7),
    Sketcher.Constraint("Vertical", 8),
    Sketcher.Constraint("Horizontal", 9),
    Sketcher.Constraint("Vertical", 10),
    Sketcher.Constraint("Horizontal", 11),
    Sketcher.Constraint("Horizontal", 15),
    Sketcher.Constraint("Symmetric", 7, 2, 8, 2, -2),
    Sketcher.Constraint("Symmetric", 5, 2, 10, 2, -2),
    Sketcher.Constraint("Symmetric", 3, 2, 12, 2, -2),
    Sketcher.Constraint("Symmetric", 2, 2, 13, 2, -2),
    Sketcher.Constraint("Symmetric", 1, 2, 14, 2, -2),
    Sketcher.Constraint("Parallel", 2, 4),
    Sketcher.Constraint("Parallel", 12, 14),
    Sketcher.Constraint("DistanceX", 1, 1, 1, 2, Q("33 mm")),
    Sketcher.Constraint("DistanceX", 7, 2, 7, 1, Q("2 mm")),
    Sketcher.Constraint("DistanceY", 0, 2, 0, 1, Q("24 mm")),
    Sketcher.Constraint("DistanceY", 6, 1, 6, 2, Q("22 mm")),
    Sketcher.Constraint("Angle", 2, Q("30 deg")),
    Sketcher.Constraint("DistanceX", 8, 2, 7, 2, Q("15 mm")),
    Sketcher.Constraint("DistanceX", 5, 2, 5, 1, Q("30.46 mm")),
    Sketcher.Constraint("Distance", 2, Q("3.46 mm")),
    Sketcher.Constraint("Distance", 4, Q("2.93 mm")),
    Sketcher.Constraint("DistanceY", -1, 1, 0, 2, Q("17.75 mm")),
])
sketch19.setExpression("Constraints[33]", "Params.sketch19_width")
sketch19.setExpression("Constraints[34]", "Params.sketch19_width2")
sketch19.setExpression("Constraints[35]", "Params.sketch19_height")
sketch19.setExpression("Constraints[36]", "Params.sketch19_height2")
sketch19.setExpression("Constraints[39]", "Params.sketch19_width3")
pad11 = body.newObject("PartDesign::Pad", "Pad010")
pad11.Profile = sketch19
pad11.setExpression("Length", "Params.pad11_length")

# Sketch on YZ plane
sketch20 = body.newObject("Sketcher::SketchObject", "Sketch019")
sketch20.AttachmentSupport = (doc.getObject("YZ_Plane"), [""])
sketch20.MapMode = "FlatFace"
sketch20.AttachmentOffset = App.Placement(V(0, 0, 7.5), App.Rotation())
add_polygon(sketch20, [(2, 18), (0, 18), (0, 40.2), (2, 40.2)])  # lines 0-3
sketch20.addConstraint([
    Sketcher.Constraint("Horizontal", 0),
    Sketcher.Constraint("Vertical", 1),
    Sketcher.Constraint("Horizontal", 2),
    Sketcher.Constraint("Vertical", 3),
    Sketcher.Constraint("PointOnObject", 0, 2, -2),
    Sketcher.Constraint("DistanceX", 0, 2, 0, 1, Q("2 mm")),
    Sketcher.Constraint("DistanceY", -1, 1, 0, 2, Q("18 mm")),
    Sketcher.Constraint("DistanceY", 1, 1, 1, 2, Q("22.25 mm")),
])
sketch20.setExpression("Constraints[9]", "Params.sketch20_width")
sketch20.setExpression("Constraints[11]", "Params.sketch20_height")
pad12 = body.newObject("PartDesign::Pad", "Pad011")
pad12.Profile = sketch20
pad12.setExpression("Length", "Params.pad12_length")
pad12.Reversed = True

# Sketch on YZ plane
sketch21 = body.newObject("Sketcher::SketchObject", "Sketch020")
sketch21.AttachmentSupport = (doc.getObject("YZ_Plane"), [""])
sketch21.MapMode = "FlatFace"
sketch21.AttachmentOffset = App.Placement(V(0, 0, -7.5), App.Rotation())
add_polygon(sketch21, [(2, 40.2), (0, 40.2), (0, 18), (2, 18)])  # lines 0-3
sketch21.addConstraint([
    Sketcher.Constraint("Horizontal", 0),
    Sketcher.Constraint("Vertical", 1),
    Sketcher.Constraint("Horizontal", 2),
    Sketcher.Constraint("Vertical", 3),
    Sketcher.Constraint("PointOnObject", 0, 2, -2),
    Sketcher.Constraint("DistanceX", 0, 2, 0, 1, Q("2 mm")),
    Sketcher.Constraint("DistanceY", -1, 1, 1, 2, Q("18 mm")),
    Sketcher.Constraint("DistanceY", 1, 2, 1, 1, Q("22.25 mm")),
])
sketch21.setExpression("Constraints[9]", "Params.sketch21_width")
sketch21.setExpression("Constraints[11]", "Params.sketch21_height")
pad13 = body.newObject("PartDesign::Pad", "Pad012")
pad13.Profile = sketch21
pad13.setExpression("Length", "Params.pad13_length")

doc.recompute()
